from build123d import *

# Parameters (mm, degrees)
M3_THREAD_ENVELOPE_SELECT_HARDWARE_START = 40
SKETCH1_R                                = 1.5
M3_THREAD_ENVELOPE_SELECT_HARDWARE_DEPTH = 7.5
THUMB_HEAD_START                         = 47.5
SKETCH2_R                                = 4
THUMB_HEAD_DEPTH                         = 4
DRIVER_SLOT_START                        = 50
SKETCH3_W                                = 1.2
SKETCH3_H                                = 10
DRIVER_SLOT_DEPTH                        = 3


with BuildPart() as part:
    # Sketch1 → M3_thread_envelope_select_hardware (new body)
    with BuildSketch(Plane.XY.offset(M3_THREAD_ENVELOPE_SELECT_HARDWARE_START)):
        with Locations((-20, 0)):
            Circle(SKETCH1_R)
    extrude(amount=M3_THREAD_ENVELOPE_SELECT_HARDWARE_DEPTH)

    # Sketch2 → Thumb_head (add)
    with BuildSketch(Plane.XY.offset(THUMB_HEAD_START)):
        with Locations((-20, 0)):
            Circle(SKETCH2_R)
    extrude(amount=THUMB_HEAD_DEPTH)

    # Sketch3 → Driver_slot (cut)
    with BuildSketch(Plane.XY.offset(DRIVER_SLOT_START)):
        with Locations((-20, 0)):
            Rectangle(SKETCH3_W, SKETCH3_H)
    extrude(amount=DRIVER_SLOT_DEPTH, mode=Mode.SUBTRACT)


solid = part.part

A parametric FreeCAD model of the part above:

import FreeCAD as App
import Part
import Sketcher

V = App.Vector


def add_polygon(sketch, points):
    """Adds a closed chain of lines whose ends are joined by coincident constraints."""
    first, n = sketch.GeometryCount, len(points)
    for a, b in zip(points, points[1:] + points[:1]):
        sketch.addGeometry(Part.LineSegment(App.Vector(*a, 0), App.Vector(*b, 0)), False)
    for i in range(n):
        sketch.addConstraint(Sketcher.Constraint("Coincident", first + i, 2, first + (i + 1) % n, 1))

doc = App.newDocument("Part")
body = doc.addObject("PartDesign::Body", "Body")

sketch1 = doc.addObject("Sketcher::SketchObject", "Sketch")
body.addObject(sketch1)
sketch1.AttachmentSupport = (doc.XY_Plane, [""])
sketch1.MapMode = "FlatFace"
sketch1.AttachmentOffset = App.Placement(V(0, 0, 40), App.Rotation())
sketch1.addGeometry(Part.Circle(V(-20, 0, 0), V(0, 0, 1), 1.5), False)
sketch1.addConstraint(Sketcher.Constraint("PointOnObject", 0, 3, -1))
sketch1.addConstraint(Sketcher.Constraint("Diameter", 0, 3.0))
sketch1.addConstraint(Sketcher.Constraint("DistanceX", 0, 3, -1, 1, 20.0))
pad1 = doc.addObject("PartDesign::Pad", "Pad")
body.addObject(pad1)
pad1.Profile = sketch1
pad1.Length = 7.5

sketch2 = doc.addObject("Sketcher::SketchObject", "Sketch001")
body.addObject(sketch2)
sketch2.AttachmentSupport = (doc.XY_Plane, [""])
sketch2.MapMode = "FlatFace"
sketch2.AttachmentOffset = App.Placement(V(0, 0, 47.5), App.Rotation())
sketch2.addGeometry(Part.Circle(V(-20, 0, 0), V(0, 0, 1), 4), False)
sketch2.addConstraint(Sketcher.Constraint("PointOnObject", 0, 3, -1))
sketch2.addConstraint(Sketcher.Constraint("Diameter", 0, 8.0))
sketch2.addConstraint(Sketcher.Constraint("DistanceX", 0, 3, -1, 1, 20.0))
pad2 = doc.addObject("PartDesign::Pad", "Pad001")
body.addObject(pad2)
pad2.Profile = sketch2
pad2.Length = 4

sketch3 = doc.addObject("Sketcher::SketchObject", "Sketch002")
body.addObject(sketch3)
sketch3.AttachmentSupport = (doc.XY_Plane, [""])
sketch3.MapMode = "FlatFace"
sketch3.AttachmentOffset = App.Placement(V(0, 0, 50), App.Rotation())
add_polygon(sketch3, [(-20.6, 5), (-20.6, -5), (-19.4, -5), (-19.4, 5)])
sketch3.addConstraint(Sketcher.Constraint("Vertical", 0))
sketch3.addConstraint(Sketcher.Constraint("Horizontal", 1))
sketch3.addConstraint(Sketcher.Constraint("Vertical", 2))
sketch3.addConstraint(Sketcher.Constraint("Horizontal", 3))
sketch3.addConstraint(Sketcher.Constraint("DistanceY", 0, 2, 0, 1, 10.0))
sketch3.addConstraint(Sketcher.Constraint("DistanceX", 1, 1, 1, 2, 1.2))
sketch3.addConstraint(Sketcher.Constraint("DistanceY", 0, 2, -1, 1, 5.0))
sketch3.addConstraint(Sketcher.Constraint("DistanceX", 0, 2, -1, 1, 20.6))
pocket1 = doc.addObject("PartDesign::Pocket", "Pocket")
body.addObject(pocket1)
pocket1.Profile = sketch3
pocket1.Length = 3
pocket1.Reversed = True

doc.recompute()
